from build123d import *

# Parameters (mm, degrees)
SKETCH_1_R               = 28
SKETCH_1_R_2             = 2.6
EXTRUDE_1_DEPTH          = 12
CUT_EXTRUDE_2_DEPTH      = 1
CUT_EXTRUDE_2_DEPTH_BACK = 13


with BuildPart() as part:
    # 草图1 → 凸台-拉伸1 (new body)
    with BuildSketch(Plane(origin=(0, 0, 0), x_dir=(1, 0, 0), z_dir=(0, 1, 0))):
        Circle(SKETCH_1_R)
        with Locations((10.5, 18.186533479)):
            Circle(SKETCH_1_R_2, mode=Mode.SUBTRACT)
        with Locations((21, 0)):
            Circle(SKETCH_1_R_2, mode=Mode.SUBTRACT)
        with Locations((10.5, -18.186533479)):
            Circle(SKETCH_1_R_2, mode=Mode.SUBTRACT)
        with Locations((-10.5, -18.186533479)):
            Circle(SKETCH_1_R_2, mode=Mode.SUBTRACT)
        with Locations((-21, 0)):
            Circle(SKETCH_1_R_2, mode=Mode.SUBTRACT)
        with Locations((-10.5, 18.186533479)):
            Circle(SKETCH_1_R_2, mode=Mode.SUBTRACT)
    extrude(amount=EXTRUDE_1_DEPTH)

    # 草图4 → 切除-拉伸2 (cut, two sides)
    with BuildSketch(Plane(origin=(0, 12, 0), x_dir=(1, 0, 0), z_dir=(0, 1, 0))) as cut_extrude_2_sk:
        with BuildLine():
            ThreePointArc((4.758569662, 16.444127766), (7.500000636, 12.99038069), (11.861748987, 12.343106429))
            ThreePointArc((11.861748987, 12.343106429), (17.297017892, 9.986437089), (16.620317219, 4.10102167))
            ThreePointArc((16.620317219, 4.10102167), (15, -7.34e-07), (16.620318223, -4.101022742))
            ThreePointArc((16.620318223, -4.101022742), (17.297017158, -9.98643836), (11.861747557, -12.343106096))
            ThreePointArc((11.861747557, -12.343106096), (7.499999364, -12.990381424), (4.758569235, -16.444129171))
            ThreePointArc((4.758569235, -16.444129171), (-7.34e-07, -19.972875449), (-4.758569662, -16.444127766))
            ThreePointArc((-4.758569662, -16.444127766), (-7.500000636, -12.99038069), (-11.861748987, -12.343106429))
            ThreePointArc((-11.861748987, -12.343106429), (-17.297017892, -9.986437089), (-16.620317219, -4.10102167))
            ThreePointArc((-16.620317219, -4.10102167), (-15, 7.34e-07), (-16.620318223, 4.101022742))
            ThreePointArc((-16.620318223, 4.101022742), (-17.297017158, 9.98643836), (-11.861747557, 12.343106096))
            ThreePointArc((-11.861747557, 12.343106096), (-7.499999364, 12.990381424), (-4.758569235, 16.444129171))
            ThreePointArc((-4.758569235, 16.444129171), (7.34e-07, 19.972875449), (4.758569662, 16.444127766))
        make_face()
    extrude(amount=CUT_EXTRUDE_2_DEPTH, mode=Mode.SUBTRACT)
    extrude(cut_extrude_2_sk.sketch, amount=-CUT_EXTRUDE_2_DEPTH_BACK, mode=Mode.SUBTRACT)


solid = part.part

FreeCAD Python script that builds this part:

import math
import FreeCAD as App
import Part
import Sketcher
Q = App.Units.Quantity

doc = App.newDocument("Part")
params = doc.addObject("Spreadsheet::Sheet", "Params")
for row, (alias, value) in enumerate([
    ("sketch1_diameter", "56 mm"),
    ("sketch1_diameter2", "5.2 mm"),
    ("pad1_length", "12 mm"),
    ("sketch2_radius", "6 mm"),
], start=1):
    params.set(f"A{row}", alias)
    params.set(f"B{row}", "=" + value)
    params.setAlias(f"B{row}", alias)

body = doc.addObject("PartDesign::Body", "Body")

sketch1 = body.newObject("Sketcher::SketchObject", "Sketch")
sketch1.AttachmentSupport = (doc.getObject("XZ_Plane"), [""])
sketch1.MapMode = "FlatFace"
sketch1.addGeometry([
    Part.Circle(App.Vector(0, 0, 0), App.Vector(0, 0, 1), 28),
    Part.Circle(App.Vector(-10.5, 18.2, 0), App.Vector(0, 0, 1), 2.6),
    Part.Circle(App.Vector(10.5, 18.2, 0), App.Vector(0, 0, 1), 2.6),
    Part.Circle(App.Vector(-21, 0, 0), App.Vector(0, 0, 1), 2.6),
    Part.Circle(App.Vector(-10.5, -18.2, 0), App.Vector(0, 0, 1), 2.6),
    Part.Circle(App.Vector(21, 0, 0), App.Vector(0, 0, 1), 2.6),
    Part.Circle(App.Vector(10.5, -18.2, 0), App.Vector(0, 0, 1), 2.6),
], False)
sketch1.addConstraint([
    Sketcher.Constraint("Coincident", 0, 3, -1, 1),
    Sketcher.Constraint("Equal", 1, 2),
    Sketcher.Constraint("Equal", 2, 3),
    Sketcher.Constraint("Equal", 3, 4),
    Sketcher.Constraint("Equal", 4, 5),
    Sketcher.Constraint("Equal", 5, 6),
    Sketcher.Constraint("Symmetric", 2, 3, 4, 3, -1, 1),
    Sketcher.Constraint("Symmetric", 3, 3, 5, 3, -1, 1),
    Sketcher.Constraint("Symmetric", 1, 3, 6, 3, -1, 1),
    Sketcher.Constraint("Symmetric", 1, 3, 2, 3, -2),
    Sketcher.Constraint("PointOnObject", 3, 3, -1),
    Sketcher.Constraint("Diameter", 0, Q("56 mm")),
    Sketcher.Constraint("Diameter", 1, Q("5.2 mm")),
    Sketcher.Constraint("DistanceX", 3, 3, -1, 1, Q("21 mm")),
    Sketcher.Constraint("DistanceX", 1, 3, 2, 3, Q("21 mm")),
    Sketcher.Constraint("DistanceY", -1, 1, 1, 3, Q("18.186533 mm")),
])
sketch1.setExpression("Constraints[11]", "Params.sketch1_diameter")
sketch1.setExpression("Constraints[12]", "Params.sketch1_diameter2")
pad1 = body.newObject("PartDesign::Pad", "Pad")
pad1.Profile = sketch1
pad1.setExpression("Length", "Params.pad1_length")
pad1.Reversed = True

sketch2 = body.newObject("Sketcher::SketchObject", "Sketch001")
sketch2.AttachmentSupport = (doc.getObject("XZ_Plane"), [""])
sketch2.MapMode = "FlatFace"
sketch2.AttachmentOffset = App.Placement(App.Vector(0, 0, -12), App.Rotation())
sketch2.addGeometry([
    Part.ArcOfCircle(Part.Circle(App.Vector(10.5, -18.2, 0), App.Vector(0, 0, 1), 6), math.radians(77), math.radians(163)),
    Part.ArcOfCircle(Part.Circle(App.Vector(0, -15, 0), App.Vector(0, 0, 1), 5), math.radians(-163), math.radians(-17)),
    Part.ArcOfCircle(Part.Circle(App.Vector(-10.5, -18.2, 0), App.Vector(0, 0, 1), 6), math.radians(17), math.radians(103)),
    Part.ArcOfCircle(Part.Circle(App.Vector(-13, -7.5, 0), App.Vector(0, 0, 1), 5), math.radians(137), math.radians(283)),
    Part.ArcOfCircle(Part.Circle(App.Vector(-21, 0, 0), App.Vector(0, 0, 1), 6), math.radians(-43), math.radians(43)),
    Part.ArcOfCircle(Part.Circle(App.Vector(-13, 7.5, 0), App.Vector(0, 0, 1), 5), math.radians(77), math.radians(223)),
    Part.ArcOfCircle(Part.Circle(App.Vector(-10.5, 18.2, 0), App.Vector(0, 0, 1), 6), math.radians(-103), math.radians(-17)),
    Part.ArcOfCircle(Part.Circle(App.Vector(0, 15, 0), App.Vector(0, 0, 1), 5), math.radians(17), math.radians(163)),
    Part.ArcOfCircle(Part.Circle(App.Vector(10.5, 18.2, 0), App.Vector(0, 0, 1), 6), math.radians(-163), math.radians(-77)),
    Part.ArcOfCircle(Part.Circle(App.Vector(13, 7.5, 0), App.Vector(0, 0, 1), 5), math.radians(-43), math.radians(103)),
    Part.ArcOfCircle(Part.Circle(App.Vector(21, 0, 0), App.Vector(0, 0, 1), 6), math.radians(137), math.radians(223)),
    Part.ArcOfCircle(Part.Circle(App.Vector(13, -7.5, 0), App.Vector(0, 0, 1), 5), math.radians(-103), math.radians(43)),
], False)
sketch2.addConstraint([
    Sketcher.Constraint("Tangent", 0, 2, 1, 2),
    Sketcher.Constraint("Tangent", 1, 1, 2, 1),
    Sketcher.Constraint("Tangent", 2, 2, 3, 2),
    Sketcher.Constraint("Tangent", 3, 1, 4, 1),
    Sketcher.Constraint("Tangent", 4, 2, 5, 2),
    Sketcher.Constraint("Tangent", 5, 1, 6, 1),
    Sketcher.Constraint("Tangent", 6, 2, 7, 2),
    Sketcher.Constraint("Tangent", 7, 1, 8, 1),
    Sketcher.Constraint("Tangent", 8, 2, 9, 2),
    Sketcher.Constraint("Tangent", 9, 1, 10, 1),
    Sketcher.Constraint("Tangent", 10, 2, 11, 2),
    Sketcher.Constraint("Tangent", 11, 1, 0, 1),
    Sketcher.Constraint("Equal", 0, 2),
    Sketcher.Constraint("Equal", 1, 3),
    Sketcher.Constraint("Equal", 2, 4),
    Sketcher.Constraint("Equal", 3, 5),
    Sketcher.Constraint("Equal", 4, 6),
    Sketcher.Constraint("Equal", 5, 7),
    Sketcher.Constraint("Equal", 6, 8),
    Sketcher.Constraint("Equal", 7, 9),
    Sketcher.Constraint("Equal", 8, 10),
    Sketcher.Constraint("Equal", 9, 11),
    Sketcher.Constraint("Symmetric", 0, 3, 6, 3, -1, 1),
    Sketcher.Constraint("Symmetric", 2, 3, 8, 3, -1, 1),
    Sketcher.Constraint("Symmetric", 4, 3, 10, 3, -1, 1),
    Sketcher.Constraint("Symmetric", 0, 3, 2, 3, -2),
    Sketcher.Constraint("PointOnObject", 4, 3, -1),
    Sketcher.Constraint("Radius", 0, Q("6 mm")),
    Sketcher.Constraint("DistanceY", 1, 3, -1, 1, Q("15 mm")),
    Sketcher.Constraint("DistanceX", 4, 3, -1, 1, Q("21 mm")),
    Sketcher.Constraint("DistanceX", 2, 3, 0, 3, Q("21 mm")),
    Sketcher.Constraint("DistanceY", 3, 3, 5, 3, Q("15 mm")),
])
sketch2.setExpression("Constraints[27]", "Params.sketch2_radius")
pocket1 = body.newObject("PartDesign::Pocket", "Pocket")
pocket1.Profile = sketch2
pocket1.Type = "ThroughAll"
pocket1.Midplane = True

doc.recompute()
